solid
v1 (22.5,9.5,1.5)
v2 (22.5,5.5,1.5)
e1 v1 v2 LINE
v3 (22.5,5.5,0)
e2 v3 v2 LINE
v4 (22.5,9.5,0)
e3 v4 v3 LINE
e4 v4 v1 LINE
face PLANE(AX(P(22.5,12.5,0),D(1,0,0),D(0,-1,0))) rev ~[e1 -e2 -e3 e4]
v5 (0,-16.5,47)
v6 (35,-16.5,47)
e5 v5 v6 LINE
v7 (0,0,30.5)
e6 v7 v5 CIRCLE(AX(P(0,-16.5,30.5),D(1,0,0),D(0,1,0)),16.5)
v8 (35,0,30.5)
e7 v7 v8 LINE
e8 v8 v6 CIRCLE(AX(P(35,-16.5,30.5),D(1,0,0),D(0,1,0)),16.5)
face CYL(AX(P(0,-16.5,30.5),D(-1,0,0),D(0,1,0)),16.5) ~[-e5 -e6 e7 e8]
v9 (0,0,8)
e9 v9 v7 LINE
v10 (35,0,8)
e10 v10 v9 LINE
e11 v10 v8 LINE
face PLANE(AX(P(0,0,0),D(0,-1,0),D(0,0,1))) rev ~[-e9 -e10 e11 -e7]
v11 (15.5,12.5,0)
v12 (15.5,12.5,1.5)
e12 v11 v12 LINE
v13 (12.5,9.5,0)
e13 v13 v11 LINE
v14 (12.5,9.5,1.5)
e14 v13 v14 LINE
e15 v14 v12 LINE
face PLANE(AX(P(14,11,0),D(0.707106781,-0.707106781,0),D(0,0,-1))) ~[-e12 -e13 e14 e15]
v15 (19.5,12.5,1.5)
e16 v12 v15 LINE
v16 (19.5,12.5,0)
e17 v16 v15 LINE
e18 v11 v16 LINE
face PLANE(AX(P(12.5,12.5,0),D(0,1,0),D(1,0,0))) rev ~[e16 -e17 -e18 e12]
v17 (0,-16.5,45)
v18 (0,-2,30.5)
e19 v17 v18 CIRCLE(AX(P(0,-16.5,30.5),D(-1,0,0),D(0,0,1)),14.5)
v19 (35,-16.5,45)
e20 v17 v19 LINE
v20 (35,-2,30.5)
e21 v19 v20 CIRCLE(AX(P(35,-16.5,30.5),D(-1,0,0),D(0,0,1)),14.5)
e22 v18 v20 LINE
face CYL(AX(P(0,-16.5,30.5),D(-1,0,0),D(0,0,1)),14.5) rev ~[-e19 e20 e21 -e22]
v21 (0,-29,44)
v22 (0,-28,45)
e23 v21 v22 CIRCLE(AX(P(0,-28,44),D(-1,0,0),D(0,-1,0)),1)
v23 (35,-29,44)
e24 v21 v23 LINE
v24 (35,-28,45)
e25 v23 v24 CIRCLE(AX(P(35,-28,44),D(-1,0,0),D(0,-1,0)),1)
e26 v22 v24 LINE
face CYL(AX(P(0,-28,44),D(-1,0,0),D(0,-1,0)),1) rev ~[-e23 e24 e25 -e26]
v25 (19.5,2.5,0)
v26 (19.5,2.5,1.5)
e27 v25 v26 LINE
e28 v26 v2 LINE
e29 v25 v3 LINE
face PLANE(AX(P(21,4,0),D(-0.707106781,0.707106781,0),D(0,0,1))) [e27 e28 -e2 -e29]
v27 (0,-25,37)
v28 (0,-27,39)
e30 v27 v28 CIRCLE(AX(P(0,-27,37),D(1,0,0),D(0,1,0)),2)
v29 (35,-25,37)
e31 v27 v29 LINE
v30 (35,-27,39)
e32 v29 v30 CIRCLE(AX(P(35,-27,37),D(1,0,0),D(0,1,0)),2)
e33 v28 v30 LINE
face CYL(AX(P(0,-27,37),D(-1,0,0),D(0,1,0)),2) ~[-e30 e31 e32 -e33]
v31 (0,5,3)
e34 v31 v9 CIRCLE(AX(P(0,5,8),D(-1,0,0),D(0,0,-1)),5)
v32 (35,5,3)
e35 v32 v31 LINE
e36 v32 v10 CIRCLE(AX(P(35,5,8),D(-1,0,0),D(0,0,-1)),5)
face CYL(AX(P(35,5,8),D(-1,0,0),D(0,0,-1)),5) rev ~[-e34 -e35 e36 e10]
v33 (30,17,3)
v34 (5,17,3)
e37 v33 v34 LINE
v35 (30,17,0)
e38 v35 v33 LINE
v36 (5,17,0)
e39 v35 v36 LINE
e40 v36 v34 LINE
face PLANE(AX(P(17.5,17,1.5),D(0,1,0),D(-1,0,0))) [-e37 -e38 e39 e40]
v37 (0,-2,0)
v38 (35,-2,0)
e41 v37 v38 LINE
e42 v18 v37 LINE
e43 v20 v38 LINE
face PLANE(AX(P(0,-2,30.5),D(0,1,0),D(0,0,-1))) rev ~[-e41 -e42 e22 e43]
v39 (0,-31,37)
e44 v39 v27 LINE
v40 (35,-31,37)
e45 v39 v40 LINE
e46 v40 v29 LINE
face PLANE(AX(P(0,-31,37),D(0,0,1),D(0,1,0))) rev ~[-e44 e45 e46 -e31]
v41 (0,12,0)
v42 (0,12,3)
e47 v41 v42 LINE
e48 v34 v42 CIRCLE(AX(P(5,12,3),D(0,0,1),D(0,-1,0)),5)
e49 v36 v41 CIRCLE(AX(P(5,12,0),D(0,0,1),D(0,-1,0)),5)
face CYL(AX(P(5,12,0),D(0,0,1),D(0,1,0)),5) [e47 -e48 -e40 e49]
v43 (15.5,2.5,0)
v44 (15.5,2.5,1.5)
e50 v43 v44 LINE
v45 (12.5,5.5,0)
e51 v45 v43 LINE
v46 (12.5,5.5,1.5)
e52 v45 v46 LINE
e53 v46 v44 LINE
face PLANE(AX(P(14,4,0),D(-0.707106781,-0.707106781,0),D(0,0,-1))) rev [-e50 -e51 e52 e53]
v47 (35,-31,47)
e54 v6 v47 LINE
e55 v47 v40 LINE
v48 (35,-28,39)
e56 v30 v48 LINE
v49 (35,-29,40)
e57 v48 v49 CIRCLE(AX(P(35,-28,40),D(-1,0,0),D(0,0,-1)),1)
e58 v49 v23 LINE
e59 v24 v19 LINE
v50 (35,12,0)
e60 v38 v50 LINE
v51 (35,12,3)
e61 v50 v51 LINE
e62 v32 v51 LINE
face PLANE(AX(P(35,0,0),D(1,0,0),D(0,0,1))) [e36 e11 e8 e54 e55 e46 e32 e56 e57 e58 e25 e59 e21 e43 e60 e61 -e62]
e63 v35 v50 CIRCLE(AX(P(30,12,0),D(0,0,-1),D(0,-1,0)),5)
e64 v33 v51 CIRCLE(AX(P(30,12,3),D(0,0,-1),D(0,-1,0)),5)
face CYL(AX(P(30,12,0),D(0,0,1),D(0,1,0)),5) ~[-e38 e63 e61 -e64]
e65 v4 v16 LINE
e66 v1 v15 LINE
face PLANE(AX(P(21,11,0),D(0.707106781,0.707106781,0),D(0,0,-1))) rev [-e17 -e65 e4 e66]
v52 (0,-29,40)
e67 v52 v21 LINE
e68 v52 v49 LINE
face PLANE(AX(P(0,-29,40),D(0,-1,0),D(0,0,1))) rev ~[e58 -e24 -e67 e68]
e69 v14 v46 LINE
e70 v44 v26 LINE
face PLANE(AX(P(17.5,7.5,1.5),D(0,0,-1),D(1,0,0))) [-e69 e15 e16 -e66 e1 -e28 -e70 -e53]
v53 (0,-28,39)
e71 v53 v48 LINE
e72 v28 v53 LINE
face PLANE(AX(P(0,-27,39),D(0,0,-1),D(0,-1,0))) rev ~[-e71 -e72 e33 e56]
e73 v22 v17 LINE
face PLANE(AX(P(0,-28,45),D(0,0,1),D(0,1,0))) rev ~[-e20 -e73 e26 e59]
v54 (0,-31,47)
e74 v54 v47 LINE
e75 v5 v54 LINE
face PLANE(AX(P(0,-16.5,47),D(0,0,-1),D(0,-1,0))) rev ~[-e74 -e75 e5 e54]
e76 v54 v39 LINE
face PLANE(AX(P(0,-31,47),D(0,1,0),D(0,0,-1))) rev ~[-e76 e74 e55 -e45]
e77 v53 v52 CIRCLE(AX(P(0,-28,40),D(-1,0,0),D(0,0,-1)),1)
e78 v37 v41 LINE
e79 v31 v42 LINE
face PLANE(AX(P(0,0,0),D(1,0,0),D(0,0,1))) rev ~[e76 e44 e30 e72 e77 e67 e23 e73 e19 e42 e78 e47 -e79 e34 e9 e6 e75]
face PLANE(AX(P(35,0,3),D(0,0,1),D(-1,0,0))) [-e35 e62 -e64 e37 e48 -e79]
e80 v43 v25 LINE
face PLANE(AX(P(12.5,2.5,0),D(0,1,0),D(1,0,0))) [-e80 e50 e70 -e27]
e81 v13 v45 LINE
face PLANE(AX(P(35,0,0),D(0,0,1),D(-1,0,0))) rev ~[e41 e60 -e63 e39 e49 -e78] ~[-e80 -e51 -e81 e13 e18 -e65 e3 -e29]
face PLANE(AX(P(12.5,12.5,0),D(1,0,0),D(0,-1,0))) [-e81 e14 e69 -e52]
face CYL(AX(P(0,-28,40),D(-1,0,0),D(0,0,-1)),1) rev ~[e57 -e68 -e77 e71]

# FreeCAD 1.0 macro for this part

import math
import FreeCAD as App
import Part
import Sketcher
from FreeCAD import Vector


def edges_at(feature, points):
    """Names of the edges that pass closest to the given points."""
    edges = feature.Shape.Edges
    near = lambda p: min(range(len(edges)), key=lambda i: edges[i].distToShape(Part.Vertex(*p))[0])
    return sorted({f"Edge{near(p) + 1}" for p in points})


def add_polygon(sketch, points):
    """Adds a closed chain of lines whose ends are joined by coincident constraints."""
    first, n = sketch.GeometryCount, len(points)
    for a, b in zip(points, points[1:] + points[:1]):
        sketch.addGeometry(Part.LineSegment(App.Vector(*a, 0), App.Vector(*b, 0)), False)
    for i in range(n):
        sketch.addConstraint(Sketcher.Constraint("Coincident", first + i, 2, first + (i + 1) % n, 1))

doc = App.newDocument("Part")
body = doc.addObject("PartDesign::Body", "Body")

# Sketch on YZ plane
sketch1 = body.newObject("Sketcher::SketchObject", "Sketch")
sketch1.AttachmentSupport = (doc.getObject("YZ_Plane"), [""])
sketch1.MapMode = "FlatFace"
sketch1.addGeometry([
    Part.ArcOfCircle(Part.Circle(Vector(-28, 44, 0), Vector(0, 0, 1), 1), math.radians(90), math.radians(180)),  # 0
    Part.LineSegment(Vector(-28, 45, 0), Vector(-16.5, 45, 0)),  # 1
    Part.ArcOfCircle(Part.Circle(Vector(-16.5, 30.5, 0), Vector(0, 0, 1), 14.5), math.radians(0), math.radians(90)),  # 2
    Part.LineSegment(Vector(-2, 30.5, 0), Vector(-2, 0, 0)),  # 3
    Part.LineSegment(Vector(-2, 0, 0), Vector(0, 0, 0)),  # 4
    Part.LineSegment(Vector(0, 0, 0), Vector(0, 30.5, 0)),  # 5
    Part.ArcOfCircle(Part.Circle(Vector(-16.5, 30.5, 0), Vector(0, 0, 1), 16.5), math.radians(0), math.radians(90)),  # 6
    Part.LineSegment(Vector(-16.5, 47, 0), Vector(-31, 47, 0)),  # 7
    Part.LineSegment(Vector(-31, 47, 0), Vector(-31, 37, 0)),  # 8
    Part.LineSegment(Vector(-31, 37, 0), Vector(-25, 37, 0)),  # 9
    Part.ArcOfCircle(Part.Circle(Vector(-27, 37, 0), Vector(0, 0, 1), 2), math.radians(0), math.radians(90)),  # 10
    Part.LineSegment(Vector(-27, 39, 0), Vector(-28, 39, 0)),  # 11
    Part.ArcOfCircle(Part.Circle(Vector(-28, 40, 0), Vector(0, 0, 1), 1), math.radians(180), math.radians(270)),  # 12
    Part.LineSegment(Vector(-29, 40, 0), Vector(-29, 44, 0)),  # 13
], False)
sketch1.addConstraint([
    Sketcher.Constraint("Tangent", 0, 1, 1, 1),
    Sketcher.Constraint("Tangent", 1, 2, 2, 2),
    Sketcher.Constraint("Tangent", 2, 1, 3, 1),
    Sketcher.Constraint("Coincident", 3, 2, 4, 1),
    Sketcher.Constraint("Coincident", 4, 2, 5, 1),
    Sketcher.Constraint("Tangent", 5, 2, 6, 1),
    Sketcher.Constraint("Tangent", 6, 2, 7, 1),
    Sketcher.Constraint("Coincident", 7, 2, 8, 1),
    Sketcher.Constraint("Coincident", 8, 2, 9, 1),
    Sketcher.Constraint("Coincident", 9, 2, 10, 1),
    Sketcher.Constraint("Tangent", 10, 2, 11, 1),
    Sketcher.Constraint("Tangent", 11, 2, 12, 2),
    Sketcher.Constraint("Tangent", 12, 1, 13, 1),
    Sketcher.Constraint("Tangent", 13, 2, 0, 2),
    Sketcher.Constraint("Horizontal", 1),
    Sketcher.Constraint("Vertical", 3),
    Sketcher.Constraint("Horizontal", 4),
    Sketcher.Constraint("Vertical", 5),
    Sketcher.Constraint("Horizontal", 7),
    Sketcher.Constraint("Vertical", 8),
    Sketcher.Constraint("Horizontal", 9),
    Sketcher.Constraint("Horizontal", 11),
    Sketcher.Constraint("Vertical", 13),
    Sketcher.Constraint("Coincident", 4, 2, -1, 1),
    Sketcher.Constraint("Coincident", 6, 3, 2, 3),
    Sketcher.Constraint("Equal", 0, 12),
    Sketcher.Constraint("Horizontal", 10, 3, 8, 2),
    Sketcher.Constraint("Radius", 0, 1.0),
    Sketcher.Constraint("Radius", 10, 2.0),
    Sketcher.Constraint("Radius", 2, 14.5),
    Sketcher.Constraint("Radius", 6, 16.5),
    Sketcher.Constraint("DistanceX", 9, 1, 9, 2, 6.0),
    Sketcher.Constraint("DistanceX", 11, 2, 11, 1, 1.0),
    Sketcher.Constraint("DistanceY", 8, 2, 8, 1, 10.0),
    Sketcher.Constraint("DistanceX", 1, 1, 1, 2, 11.5),
    Sketcher.Constraint("DistanceY", 3, 2, 3, 1, 30.5),
])
pad1 = body.newObject("PartDesign::Pad", "Pad")
pad1.Profile = sketch1
pad1.Length = 35

# Sketch on XZ plane
sketch2 = body.newObject("Sketcher::SketchObject", "Sketch001")
sketch2.AttachmentSupport = (doc.getObject("XZ_Plane"), [""])
sketch2.MapMode = "FlatFace"
add_polygon(sketch2, [(35, 3), (35, 0), (0, 0), (0, 3)])  # lines 0-3
sketch2.addConstraint([
    Sketcher.Constraint("Vertical", 0),
    Sketcher.Constraint("Horizontal", 1),
    Sketcher.Constraint("Vertical", 2),
    Sketcher.Constraint("Horizontal", 3),
    Sketcher.Constraint("Coincident", 1, 2, -1, 1),
    Sketcher.Constraint("DistanceX", 1, 2, 1, 1, 35.0),
    Sketcher.Constraint("DistanceY", 0, 2, 0, 1, 3.0),
])
pad2 = body.newObject("PartDesign::Pad", "Pad001")
pad2.Profile = sketch2
pad2.Length = 17
pad2.Reversed = True

# Sketch on XY plane
sketch3 = body.newObject("Sketcher::SketchObject", "Sketch002")
sketch3.AttachmentSupport = (doc.getObject("XY_Plane"), [""])
sketch3.MapMode = "FlatFace"
add_polygon(sketch3, [(12, 2), (12, 12), (22, 12), (22, 2)])  # lines 0-3
sketch3.addConstraint([
    Sketcher.Constraint("Vertical", 0),
    Sketcher.Constraint("Horizontal", 1),
    Sketcher.Constraint("Vertical", 2),
    Sketcher.Constraint("Horizontal", 3),
    Sketcher.Constraint("Equal", 3, 0),
    Sketcher.Constraint("DistanceX", 1, 1, 1, 2, 10.0),
    Sketcher.Constraint("DistanceX", -1, 1, 0, 2, 12.5),
    Sketcher.Constraint("DistanceY", -1, 1, 0, 2, 12.5),
])
pocket1 = body.newObject("PartDesign::Pocket", "Pocket")
pocket1.Profile = sketch3
pocket1.Length = 1.5
pocket1.Reversed = True
doc.recompute()

chamfer = body.newObject("PartDesign::Chamfer", "Chamfer")
chamfer.Base = (pocket1, edges_at(pocket1, [
    (22.5, 2.5, 0.75),
    (22.5, 12.5, 0.75),
    (12.5, 12.5, 0.75),
    (12.5, 2.5, 0.75),
]))
chamfer.Size = 3
doc.recompute()

fillet = body.newObject("PartDesign::Fillet", "Fillet")
fillet.Base = (chamfer, edges_at(chamfer, [(0, 17, 1.5), (35, 17, 1.5), (17.5, 0, 3)]))
fillet.Radius = 5

doc.recompute()
